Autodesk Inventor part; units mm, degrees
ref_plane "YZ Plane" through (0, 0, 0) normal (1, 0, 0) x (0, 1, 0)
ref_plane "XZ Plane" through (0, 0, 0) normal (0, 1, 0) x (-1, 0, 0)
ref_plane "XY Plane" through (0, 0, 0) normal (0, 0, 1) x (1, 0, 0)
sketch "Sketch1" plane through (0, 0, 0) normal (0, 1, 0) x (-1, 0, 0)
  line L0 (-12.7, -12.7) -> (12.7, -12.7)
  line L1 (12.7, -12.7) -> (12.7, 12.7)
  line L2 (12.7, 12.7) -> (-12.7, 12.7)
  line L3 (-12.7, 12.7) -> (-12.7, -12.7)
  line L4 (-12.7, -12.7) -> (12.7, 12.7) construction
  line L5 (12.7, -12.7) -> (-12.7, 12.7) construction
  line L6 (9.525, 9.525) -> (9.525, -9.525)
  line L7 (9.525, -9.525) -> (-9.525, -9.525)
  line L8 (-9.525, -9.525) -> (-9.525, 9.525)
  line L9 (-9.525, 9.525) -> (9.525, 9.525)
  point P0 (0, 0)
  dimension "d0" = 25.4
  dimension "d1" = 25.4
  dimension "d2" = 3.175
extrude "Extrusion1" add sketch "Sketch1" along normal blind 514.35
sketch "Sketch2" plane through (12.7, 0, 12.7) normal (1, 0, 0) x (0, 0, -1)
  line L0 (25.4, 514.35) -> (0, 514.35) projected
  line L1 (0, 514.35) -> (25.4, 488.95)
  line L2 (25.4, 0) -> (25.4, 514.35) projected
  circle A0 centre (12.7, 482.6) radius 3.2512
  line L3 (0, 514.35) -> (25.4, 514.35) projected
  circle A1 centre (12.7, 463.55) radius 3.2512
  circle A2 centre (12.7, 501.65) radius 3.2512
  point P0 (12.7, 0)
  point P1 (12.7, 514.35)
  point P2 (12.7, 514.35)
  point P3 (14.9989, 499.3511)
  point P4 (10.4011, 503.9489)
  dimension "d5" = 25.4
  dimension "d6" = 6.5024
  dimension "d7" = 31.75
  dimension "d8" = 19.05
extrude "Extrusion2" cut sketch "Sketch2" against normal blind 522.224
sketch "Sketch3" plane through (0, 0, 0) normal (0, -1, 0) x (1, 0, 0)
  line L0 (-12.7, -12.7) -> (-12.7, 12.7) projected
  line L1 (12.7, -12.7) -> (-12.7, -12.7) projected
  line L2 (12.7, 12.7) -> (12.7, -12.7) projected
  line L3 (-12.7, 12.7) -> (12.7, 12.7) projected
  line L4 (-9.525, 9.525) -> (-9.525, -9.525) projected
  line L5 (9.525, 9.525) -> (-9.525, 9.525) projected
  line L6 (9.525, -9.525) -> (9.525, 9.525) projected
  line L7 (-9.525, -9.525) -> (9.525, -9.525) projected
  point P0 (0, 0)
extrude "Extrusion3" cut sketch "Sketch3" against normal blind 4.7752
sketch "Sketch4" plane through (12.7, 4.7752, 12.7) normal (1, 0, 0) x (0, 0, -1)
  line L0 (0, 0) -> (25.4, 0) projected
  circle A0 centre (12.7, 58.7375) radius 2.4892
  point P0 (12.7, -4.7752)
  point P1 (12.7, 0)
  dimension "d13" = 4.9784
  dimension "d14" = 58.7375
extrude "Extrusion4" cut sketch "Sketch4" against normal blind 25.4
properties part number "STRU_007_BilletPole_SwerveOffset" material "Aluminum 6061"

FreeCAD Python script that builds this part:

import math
import FreeCAD as App
import Part
import Sketcher
from FreeCAD import Vector
Q = App.Units.Quantity


def add_polygon(sketch, points):
    """Adds a closed chain of lines whose ends are joined by coincident constraints."""
    first, n = sketch.GeometryCount, len(points)
    for a, b in zip(points, points[1:] + points[:1]):
        sketch.addGeometry(Part.LineSegment(App.Vector(*a, 0), App.Vector(*b, 0)), False)
    for i in range(n):
        sketch.addConstraint(Sketcher.Constraint("Coincident", first + i, 2, first + (i + 1) % n, 1))

doc = App.newDocument("Part")
body = doc.addObject("PartDesign::Body", "Body")

# Sketch on XZ plane
sketch1 = body.newObject("Sketcher::SketchObject", "Sketch")
sketch1.AttachmentSupport = (doc.getObject("XZ_Plane"), [""])
sketch1.MapMode = "FlatFace"
add_polygon(sketch1, [(12.7, 12.7), (12.7, -12.7), (-12.7, -12.7), (-12.7, 12.7)])  # lines 0-3
add_polygon(sketch1, [(9.525, 9.525), (-9.525, 9.525), (-9.525, -9.525), (9.525, -9.525)])  # lines 4-7
sketch1.addConstraint([
    Sketcher.Constraint("Vertical", 0),
    Sketcher.Constraint("Horizontal", 1),
    Sketcher.Constraint("Vertical", 2),
    Sketcher.Constraint("Horizontal", 3),
    Sketcher.Constraint("Horizontal", 4),
    Sketcher.Constraint("Vertical", 5),
    Sketcher.Constraint("Horizontal", 6),
    Sketcher.Constraint("Vertical", 7),
    Sketcher.Constraint("Symmetric", 0, 2, 2, 2, -1, 1),
    Sketcher.Constraint("Symmetric", 4, 2, 6, 2, -1, 1),
    Sketcher.Constraint("Equal", 3, 0),
    Sketcher.Constraint("Equal", 6, 5),
    Sketcher.Constraint("DistanceX", 1, 2, 1, 1, Q("1 in")),
    Sketcher.Constraint("DistanceX", 2, 2, 4, 2, Q("0.125 in")),
])
pad1 = body.newObject("PartDesign::Pad", "Pad")
pad1.Profile = sketch1
pad1.Length = Q("20.25 in")
pad1.Reversed = True

# Sketch on YZ plane
sketch2 = body.newObject("Sketcher::SketchObject", "Sketch001")
sketch2.AttachmentSupport = (doc.getObject("YZ_Plane"), [""])
sketch2.MapMode = "FlatFace"
sketch2.AttachmentOffset = App.Placement(Vector(0, 0, 0.5 * 25.4), App.Rotation())
sketch2.addGeometry([
    Part.LineSegment(Vector(488.95, -12.7, 0), Vector(514.35, -12.7, 0)),  # 0
    Part.LineSegment(Vector(514.35, -12.7, 0), Vector(514.35, 12.7, 0)),  # 1
    Part.LineSegment(Vector(514.35, 12.7, 0), Vector(503.948946, 2.298946, 0)),  # 2
    Part.ArcOfCircle(Part.Circle(Vector(501.65, 0, 0), Vector(0, 0, 1), 3.2512), math.radians(45), math.radians(225)),  # 3
    Part.LineSegment(Vector(499.351054, -2.298946, 0), Vector(488.95, -12.7, 0)),  # 4
    Part.Circle(Vector(482.6, 0, 0), Vector(0, 0, 1), 3.2512),  # 5
    Part.Circle(Vector(463.55, 0, 0), Vector(0, 0, 1), 3.2512),  # 6
], False)
sketch2.addConstraint([
    Sketcher.Constraint("Coincident", 0, 2, 1, 1),
    Sketcher.Constraint("Coincident", 1, 2, 2, 1),
    Sketcher.Constraint("Coincident", 2, 2, 3, 1),
    Sketcher.Constraint("Coincident", 3, 2, 4, 1),
    Sketcher.Constraint("Coincident", 4, 2, 0, 1),
    Sketcher.Constraint("Horizontal", 0),
    Sketcher.Constraint("Vertical", 1),
    Sketcher.Constraint("Equal", 3, 5),
    Sketcher.Constraint("Equal", 5, 6),
    Sketcher.Constraint("PointOnObject", 3, 3, -1),
    Sketcher.Constraint("PointOnObject", 5, 3, -1),
    Sketcher.Constraint("PointOnObject", 6, 3, -1),
    Sketcher.Constraint("Parallel", 2, 4),
    Sketcher.Constraint("Equal", 0, 1),
    Sketcher.Constraint("Equal", 2, 4),
    Sketcher.Constraint("DistanceX", 0, 1, 0, 2, Q("1 in")),
    Sketcher.Constraint("Diameter", 5, Q("0.256 in")),
    Sketcher.Constraint("DistanceX", 5, 3, 3, 3, Q("0.75 in")),
    Sketcher.Constraint("DistanceX", 6, 3, 5, 3, Q("0.75 in")),
    Sketcher.Constraint("DistanceX", 5, 3, 0, 2, Q("1.25 in")),
    Sketcher.Constraint("DistanceX", -1, 1, 5, 3, Q("19 in")),
    Sketcher.Constraint("Angle", 2, Q("-135 deg")),
])
pocket1 = body.newObject("PartDesign::Pocket", "Pocket")
pocket1.Profile = sketch2
pocket1.Length = Q("20.56 in")

# Sketch on XZ plane
sketch3 = body.newObject("Sketcher::SketchObject", "Sketch002")
sketch3.AttachmentSupport = (doc.getObject("XZ_Plane"), [""])
sketch3.MapMode = "FlatFace"
add_polygon(sketch3, [(-12.7, 12.7), (-12.7, -12.7), (12.7, -12.7), (12.7, 12.7)])  # lines 0-3
add_polygon(sketch3, [(-9.525, -9.525), (-9.525, 9.525), (9.525, 9.525), (9.525, -9.525)])  # lines 4-7
sketch3.addConstraint([
    Sketcher.Constraint("Vertical", 0),
    Sketcher.Constraint("Horizontal", 1),
    Sketcher.Constraint("Vertical", 2),
    Sketcher.Constraint("Horizontal", 3),
    Sketcher.Constraint("Vertical", 4),
    Sketcher.Constraint("Horizontal", 5),
    Sketcher.Constraint("Vertical", 6),
    Sketcher.Constraint("Horizontal", 7),
    Sketcher.Constraint("Symmetric", 0, 2, 2, 2, -1, 1),
    Sketcher.Constraint("Symmetric", 4, 2, 6, 2, -1, 1),
    Sketcher.Constraint("Equal", 3, 0),
    Sketcher.Constraint("Equal", 7, 4),
    Sketcher.Constraint("DistanceX", 1, 1, 1, 2, Q("1 in")),
    Sketcher.Constraint("DistanceX", 5, 1, 5, 2, Q("0.75 in")),
])
pocket2 = body.newObject("PartDesign::Pocket", "Pocket001")
pocket2.Profile = sketch3
pocket2.Length = Q("0.188 in")

# Sketch on YZ plane
sketch4 = body.newObject("Sketcher::SketchObject", "Sketch003")
sketch4.AttachmentSupport = (doc.getObject("YZ_Plane"), [""])
sketch4.MapMode = "FlatFace"
sketch4.AttachmentOffset = App.Placement(Vector(0, 0, 0.5 * 25.4), App.Rotation())
sketch4.addGeometry(Part.Circle(Vector(63.5127, 0, 0), Vector(0, 0, 1), 2.4892), False)
sketch4.addConstraint([
    Sketcher.Constraint("PointOnObject", 0, 3, -1),
    Sketcher.Constraint("Diameter", 0, Q("0.196 in")),
    Sketcher.Constraint("DistanceX", -1, 1, 0, 3, Q("2.5005 in")),
])
pocket3 = body.newObject("PartDesign::Pocket", "Pocket002")
pocket3.Profile = sketch4
pocket3.Length = Q("1 in")

doc.recompute()
